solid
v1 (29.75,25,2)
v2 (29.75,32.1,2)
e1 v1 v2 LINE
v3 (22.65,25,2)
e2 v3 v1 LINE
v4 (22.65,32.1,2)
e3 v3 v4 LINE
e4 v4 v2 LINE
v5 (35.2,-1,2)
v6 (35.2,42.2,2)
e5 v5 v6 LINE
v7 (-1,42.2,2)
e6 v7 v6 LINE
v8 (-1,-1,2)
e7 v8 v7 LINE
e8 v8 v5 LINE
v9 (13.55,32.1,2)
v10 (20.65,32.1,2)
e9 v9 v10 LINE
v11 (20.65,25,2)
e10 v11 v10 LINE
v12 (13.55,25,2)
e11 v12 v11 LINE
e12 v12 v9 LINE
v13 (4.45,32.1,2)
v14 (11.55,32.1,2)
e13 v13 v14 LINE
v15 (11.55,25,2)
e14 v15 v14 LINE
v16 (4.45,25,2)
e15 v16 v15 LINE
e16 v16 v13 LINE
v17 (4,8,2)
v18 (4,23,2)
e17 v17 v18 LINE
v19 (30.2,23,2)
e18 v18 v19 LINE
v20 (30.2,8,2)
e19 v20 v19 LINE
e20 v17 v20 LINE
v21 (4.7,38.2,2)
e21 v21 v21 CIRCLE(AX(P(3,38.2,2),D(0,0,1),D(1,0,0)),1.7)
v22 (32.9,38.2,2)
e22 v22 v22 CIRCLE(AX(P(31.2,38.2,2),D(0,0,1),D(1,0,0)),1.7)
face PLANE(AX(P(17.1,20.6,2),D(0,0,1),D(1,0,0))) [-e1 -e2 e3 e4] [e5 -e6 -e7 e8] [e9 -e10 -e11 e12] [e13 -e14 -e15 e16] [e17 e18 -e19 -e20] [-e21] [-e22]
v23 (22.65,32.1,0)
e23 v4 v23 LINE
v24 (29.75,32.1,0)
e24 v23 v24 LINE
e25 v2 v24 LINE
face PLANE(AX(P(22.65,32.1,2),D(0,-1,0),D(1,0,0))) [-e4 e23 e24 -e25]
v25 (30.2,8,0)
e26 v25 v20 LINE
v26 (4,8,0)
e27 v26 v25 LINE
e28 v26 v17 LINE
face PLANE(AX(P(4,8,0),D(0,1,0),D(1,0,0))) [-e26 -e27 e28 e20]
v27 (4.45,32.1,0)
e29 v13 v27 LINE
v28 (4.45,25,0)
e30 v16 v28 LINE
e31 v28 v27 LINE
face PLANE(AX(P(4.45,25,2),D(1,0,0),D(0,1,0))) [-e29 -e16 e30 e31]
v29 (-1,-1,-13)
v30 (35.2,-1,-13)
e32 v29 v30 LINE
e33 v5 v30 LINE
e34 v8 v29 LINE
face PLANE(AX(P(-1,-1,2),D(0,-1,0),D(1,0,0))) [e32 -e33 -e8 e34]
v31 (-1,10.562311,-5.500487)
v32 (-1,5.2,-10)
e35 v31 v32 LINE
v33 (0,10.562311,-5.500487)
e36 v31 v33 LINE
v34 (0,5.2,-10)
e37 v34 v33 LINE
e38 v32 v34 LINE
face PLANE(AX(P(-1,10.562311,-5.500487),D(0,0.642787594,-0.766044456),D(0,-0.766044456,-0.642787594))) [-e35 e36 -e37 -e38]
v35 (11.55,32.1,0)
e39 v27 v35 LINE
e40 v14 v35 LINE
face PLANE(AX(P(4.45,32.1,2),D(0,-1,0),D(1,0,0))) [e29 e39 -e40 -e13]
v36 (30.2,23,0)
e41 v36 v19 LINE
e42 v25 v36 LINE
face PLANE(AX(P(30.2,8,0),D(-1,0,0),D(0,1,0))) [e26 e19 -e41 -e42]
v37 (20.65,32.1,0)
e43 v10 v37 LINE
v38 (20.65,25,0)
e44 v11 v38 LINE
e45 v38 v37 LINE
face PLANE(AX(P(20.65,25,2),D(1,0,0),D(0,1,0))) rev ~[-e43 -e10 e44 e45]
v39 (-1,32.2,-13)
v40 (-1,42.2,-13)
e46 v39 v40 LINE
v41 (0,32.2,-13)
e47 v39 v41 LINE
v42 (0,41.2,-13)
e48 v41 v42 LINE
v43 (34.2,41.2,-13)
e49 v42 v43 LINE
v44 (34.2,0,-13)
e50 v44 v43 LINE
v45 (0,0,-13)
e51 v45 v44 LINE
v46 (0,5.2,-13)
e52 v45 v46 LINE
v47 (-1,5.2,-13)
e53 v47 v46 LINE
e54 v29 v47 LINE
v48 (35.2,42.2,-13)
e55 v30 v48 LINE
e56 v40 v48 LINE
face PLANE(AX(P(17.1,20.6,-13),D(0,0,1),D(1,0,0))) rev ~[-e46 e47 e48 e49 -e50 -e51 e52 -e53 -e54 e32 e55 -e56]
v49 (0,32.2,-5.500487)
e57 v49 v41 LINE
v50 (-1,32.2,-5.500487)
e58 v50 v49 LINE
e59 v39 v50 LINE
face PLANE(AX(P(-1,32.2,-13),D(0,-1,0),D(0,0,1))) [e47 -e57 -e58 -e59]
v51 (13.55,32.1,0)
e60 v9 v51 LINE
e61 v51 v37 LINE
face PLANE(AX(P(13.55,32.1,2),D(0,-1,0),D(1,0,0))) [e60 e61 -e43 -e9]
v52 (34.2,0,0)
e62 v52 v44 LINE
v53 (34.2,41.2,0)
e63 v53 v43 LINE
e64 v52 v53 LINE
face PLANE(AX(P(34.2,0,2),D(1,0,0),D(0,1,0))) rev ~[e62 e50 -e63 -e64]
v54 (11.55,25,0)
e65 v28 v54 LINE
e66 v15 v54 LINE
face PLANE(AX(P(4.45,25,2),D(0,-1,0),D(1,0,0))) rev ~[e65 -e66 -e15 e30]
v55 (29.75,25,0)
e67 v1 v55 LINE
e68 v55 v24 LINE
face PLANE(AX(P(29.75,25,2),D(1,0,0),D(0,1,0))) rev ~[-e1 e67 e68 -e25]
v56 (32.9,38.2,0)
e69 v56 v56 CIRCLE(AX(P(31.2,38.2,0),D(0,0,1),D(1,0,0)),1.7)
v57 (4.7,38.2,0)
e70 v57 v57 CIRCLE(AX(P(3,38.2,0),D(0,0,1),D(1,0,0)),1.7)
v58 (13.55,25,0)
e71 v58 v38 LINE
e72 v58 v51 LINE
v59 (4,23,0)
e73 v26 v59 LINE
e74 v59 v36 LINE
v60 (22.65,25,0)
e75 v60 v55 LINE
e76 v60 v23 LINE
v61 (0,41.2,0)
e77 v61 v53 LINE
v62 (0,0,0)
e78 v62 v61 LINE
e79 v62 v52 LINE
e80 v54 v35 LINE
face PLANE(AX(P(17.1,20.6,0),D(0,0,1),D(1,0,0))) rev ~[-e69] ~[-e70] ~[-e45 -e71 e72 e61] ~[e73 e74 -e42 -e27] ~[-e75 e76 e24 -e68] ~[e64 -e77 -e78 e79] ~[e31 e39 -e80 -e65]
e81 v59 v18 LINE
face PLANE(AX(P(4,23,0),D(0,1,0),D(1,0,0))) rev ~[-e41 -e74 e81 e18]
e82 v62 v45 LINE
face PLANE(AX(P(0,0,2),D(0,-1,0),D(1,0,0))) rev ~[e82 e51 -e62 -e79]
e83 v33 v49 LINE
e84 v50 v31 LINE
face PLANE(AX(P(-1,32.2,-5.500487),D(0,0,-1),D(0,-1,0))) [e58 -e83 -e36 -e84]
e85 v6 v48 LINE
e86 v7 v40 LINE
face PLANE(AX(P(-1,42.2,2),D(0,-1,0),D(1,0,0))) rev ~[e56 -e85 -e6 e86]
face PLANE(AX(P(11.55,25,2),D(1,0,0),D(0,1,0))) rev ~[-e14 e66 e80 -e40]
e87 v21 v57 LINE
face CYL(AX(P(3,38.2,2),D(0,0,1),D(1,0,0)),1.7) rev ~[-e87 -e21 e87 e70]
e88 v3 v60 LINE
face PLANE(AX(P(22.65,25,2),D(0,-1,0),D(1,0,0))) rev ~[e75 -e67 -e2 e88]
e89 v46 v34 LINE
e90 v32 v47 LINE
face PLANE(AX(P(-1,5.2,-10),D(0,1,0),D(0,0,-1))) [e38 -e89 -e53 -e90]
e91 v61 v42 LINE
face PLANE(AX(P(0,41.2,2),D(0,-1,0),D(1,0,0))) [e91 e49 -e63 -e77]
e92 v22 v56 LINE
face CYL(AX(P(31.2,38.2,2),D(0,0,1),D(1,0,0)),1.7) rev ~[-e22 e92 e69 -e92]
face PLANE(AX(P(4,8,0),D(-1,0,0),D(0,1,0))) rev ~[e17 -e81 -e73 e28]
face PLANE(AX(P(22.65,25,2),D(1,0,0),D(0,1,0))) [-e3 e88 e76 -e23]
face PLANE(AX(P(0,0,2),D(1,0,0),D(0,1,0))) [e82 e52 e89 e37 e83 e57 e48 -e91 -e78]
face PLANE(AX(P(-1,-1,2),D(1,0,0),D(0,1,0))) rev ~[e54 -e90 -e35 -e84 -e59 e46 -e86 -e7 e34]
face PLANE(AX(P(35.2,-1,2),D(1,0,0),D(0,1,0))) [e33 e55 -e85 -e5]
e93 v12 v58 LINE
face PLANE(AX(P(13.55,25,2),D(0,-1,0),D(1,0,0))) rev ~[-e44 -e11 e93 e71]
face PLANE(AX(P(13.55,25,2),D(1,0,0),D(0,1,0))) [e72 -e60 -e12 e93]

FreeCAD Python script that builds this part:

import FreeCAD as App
import Part
import Sketcher
from FreeCAD import Vector
Q = App.Units.Quantity


def add_polygon(sketch, points):
    """Adds a closed chain of lines whose ends are joined by coincident constraints."""
    first, n = sketch.GeometryCount, len(points)
    for a, b in zip(points, points[1:] + points[:1]):
        sketch.addGeometry(Part.LineSegment(App.Vector(*a, 0), App.Vector(*b, 0)), False)
    for i in range(n):
        sketch.addConstraint(Sketcher.Constraint("Coincident", first + i, 2, first + (i + 1) % n, 1))

doc = App.newDocument("Part")
params = doc.addObject("Spreadsheet::Sheet", "Params")
for row, (alias, value) in enumerate([
    ("sketch1_height", "15 mm"),
    ("sketch1_width", "34.2 mm"),
    ("sketch1_width2", "26.2 mm"),
    ("sketch1_height2", "41.2 mm"),
    ("pad1_length", "2 mm"),
    ("sketch2_diameter", "3.4 mm"),
    ("pocket1_length", "5 mm"),
    ("sketch3_width", "7.1 mm"),
    ("pocket2_length", "5 mm"),
    ("sketch4_width", "36.2 mm"),
    ("sketch4_width2", "34.2 mm"),
    ("sketch4_height", "43.2 mm"),
    ("sketch4_height2", "41.2 mm"),
    ("pad2_length", "15 mm"),
    ("sketch5_width", "27 mm"),
    ("sketch5_height", "3 mm"),
    ("sketch5_length", "7 mm"),
    ("pocket3_length", "5 mm"),
], start=1):
    params.set(f"A{row}", alias)
    params.set(f"B{row}", "=" + value)
    params.setAlias(f"B{row}", alias)

body = doc.addObject("PartDesign::Body", "Body")

# Sketch on XY plane
sketch1 = body.newObject("Sketcher::SketchObject", "Sketch")
sketch1.AttachmentSupport = (doc.getObject("XY_Plane"), [""])
sketch1.MapMode = "FlatFace"
add_polygon(sketch1, [(0, 41), (0, 0), (34, 0), (34, 41)])  # lines 0-3
add_polygon(sketch1, [(30, 8), (4, 8), (4, 23), (30, 23)])  # lines 4-7
sketch1.addConstraint([
    Sketcher.Constraint("Vertical", 0),
    Sketcher.Constraint("Horizontal", 1),
    Sketcher.Constraint("Vertical", 2),
    Sketcher.Constraint("Horizontal", 3),
    Sketcher.Constraint("Horizontal", 4),
    Sketcher.Constraint("Vertical", 5),
    Sketcher.Constraint("Horizontal", 6),
    Sketcher.Constraint("Vertical", 7),
    Sketcher.Constraint("Coincident", 0, 2, -1, 1),
    Sketcher.Constraint("DistanceY", 5, 1, 5, 2, Q("15 mm")),
    Sketcher.Constraint("DistanceX", 1, 1, 1, 2, Q("34.2 mm")),
    Sketcher.Constraint("DistanceX", 4, 2, 4, 1, Q("26.2 mm")),
    Sketcher.Constraint("DistanceY", 0, 2, 0, 1, Q("41.2 mm")),
    Sketcher.Constraint("DistanceX", -1, 1, 4, 2, Q("4 mm")),
    Sketcher.Constraint("DistanceY", -1, 1, 4, 2, Q("8 mm")),
])
sketch1.setExpression("Constraints[17]", "Params.sketch1_height")
sketch1.setExpression("Constraints[18]", "Params.sketch1_width")
sketch1.setExpression("Constraints[19]", "Params.sketch1_width2")
sketch1.setExpression("Constraints[20]", "Params.sketch1_height2")
pad1 = body.newObject("PartDesign::Pad", "Pad")
pad1.Profile = sketch1
pad1.setExpression("Length", "Params.pad1_length")

# Sketch on XY plane
sketch2 = body.newObject("Sketcher::SketchObject", "Sketch001")
sketch2.AttachmentSupport = (doc.getObject("XY_Plane"), [""])
sketch2.MapMode = "FlatFace"
sketch2.AttachmentOffset = App.Placement(Vector(0, 0, 2), App.Rotation())
sketch2.addGeometry([
    Part.Circle(Vector(3, 38.2, 0), Vector(0, 0, 1), 1.7),
    Part.Circle(Vector(31.2, 38.2, 0), Vector(0, 0, 1), 1.7),
], False)
sketch2.addConstraint([
    Sketcher.Constraint("Equal", 0, 1),
    Sketcher.Constraint("Horizontal", 0, 3, 1, 3),
    Sketcher.Constraint("Diameter", 0, Q("3.4 mm")),
    Sketcher.Constraint("DistanceX", -1, 1, 0, 3, Q("3 mm")),
    Sketcher.Constraint("DistanceY", -1, 1, 0, 3, Q("38.2 mm")),
    Sketcher.Constraint("DistanceX", -1, 1, 1, 3, Q("31.2 mm")),
])
sketch2.setExpression("Constraints[2]", "Params.sketch2_diameter")
pocket1 = body.newObject("PartDesign::Pocket", "Pocket")
pocket1.Profile = sketch2
pocket1.setExpression("Length", "Params.pocket1_length")

# Sketch on XY plane
sketch3 = body.newObject("Sketcher::SketchObject", "Sketch002")
sketch3.AttachmentSupport = (doc.getObject("XY_Plane"), [""])
sketch3.MapMode = "FlatFace"
sketch3.AttachmentOffset = App.Placement(Vector(0, 0, 2), App.Rotation())
add_polygon(sketch3, [(4, 32), (4, 25), (12, 25), (12, 32)])  # lines 0-3
add_polygon(sketch3, [(14, 32), (14, 25), (21, 25), (21, 32)])  # lines 4-7
add_polygon(sketch3, [(23, 32), (23, 25), (30, 25), (30, 32)])  # lines 8-11
sketch3.addConstraint([
    Sketcher.Constraint("Vertical", 0),
    Sketcher.Constraint("Horizontal", 1),
    Sketcher.Constraint("Vertical", 2),
    Sketcher.Constraint("Horizontal", 3),
    Sketcher.Constraint("Vertical", 4),
    Sketcher.Constraint("Horizontal", 5),
    Sketcher.Constraint("Vertical", 6),
    Sketcher.Constraint("Horizontal", 7),
    Sketcher.Constraint("Vertical", 8),
    Sketcher.Constraint("Horizontal", 9),
    Sketcher.Constraint("Vertical", 10),
    Sketcher.Constraint("Horizontal", 11),
    Sketcher.Constraint("Horizontal", 1, 2, 4, 2),
    Sketcher.Constraint("Horizontal", 3, 2, 6, 2),
    Sketcher.Constraint("Horizontal", 5, 2, 8, 2),
    Sketcher.Constraint("Horizontal", 7, 2, 10, 2),
    Sketcher.Constraint("Equal", 3, 5),
    Sketcher.Constraint("Equal", 7, 9),
    Sketcher.Constraint("Equal", 11, 0),
    Sketcher.Constraint("DistanceX", 1, 1, 1, 2, Q("7.1 mm")),
    Sketcher.Constraint("DistanceY", -1, 1, 0, 2, Q("25 mm")),
    Sketcher.Constraint("DistanceX", 1, 2, 4, 2, Q("2 mm")),
    Sketcher.Constraint("DistanceX", 5, 2, 8, 2, Q("2 mm")),
    Sketcher.Constraint("DistanceX", -1, 1, 0, 2, Q("4.45 mm")),
])
sketch3.setExpression("Constraints[31]", "Params.sketch3_width")
pocket2 = body.newObject("PartDesign::Pocket", "Pocket001")
pocket2.Profile = sketch3
pocket2.setExpression("Length", "Params.pocket2_length")

# Sketch on XY plane
sketch4 = body.newObject("Sketcher::SketchObject", "Sketch003")
sketch4.AttachmentSupport = (doc.getObject("XY_Plane"), [""])
sketch4.MapMode = "FlatFace"
sketch4.AttachmentOffset = App.Placement(Vector(0, 0, 2), App.Rotation())
add_polygon(sketch4, [(-1, 42), (-1, -1), (35, -1), (35, 42)])  # lines 0-3
add_polygon(sketch4, [(34, 0), (0, 0), (0, 41), (34, 41)])  # lines 4-7
sketch4.addConstraint([
    Sketcher.Constraint("Vertical", 0),
    Sketcher.Constraint("Horizontal", 1),
    Sketcher.Constraint("Vertical", 2),
    Sketcher.Constraint("Horizontal", 3),
    Sketcher.Constraint("Horizontal", 4),
    Sketcher.Constraint("Vertical", 5),
    Sketcher.Constraint("Horizontal", 6),
    Sketcher.Constraint("Vertical", 7),
    Sketcher.Constraint("Coincident", 4, 2, -1, 1),
    Sketcher.Constraint("DistanceX", 1, 1, 1, 2, Q("36.2 mm")),
    Sketcher.Constraint("DistanceX", 4, 2, 4, 1, Q("34.2 mm")),
    Sketcher.Constraint("DistanceY", 0, 2, 0, 1, Q("43.2 mm")),
    Sketcher.Constraint("DistanceY", 5, 1, 5, 2, Q("41.2 mm")),
    Sketcher.Constraint("DistanceX", 0, 2, -1, 1, Q("1 mm")),
    Sketcher.Constraint("DistanceY", 0, 2, -1, 1, Q("1 mm")),
])
sketch4.setExpression("Constraints[17]", "Params.sketch4_width")
sketch4.setExpression("Constraints[18]", "Params.sketch4_width2")
sketch4.setExpression("Constraints[19]", "Params.sketch4_height")
sketch4.setExpression("Constraints[20]", "Params.sketch4_height2")
pad2 = body.newObject("PartDesign::Pad", "Pad001")
pad2.Profile = sketch4
pad2.setExpression("Length", "Params.pad2_length")
pad2.Reversed = True

# Sketch on YZ plane
sketch5 = body.newObject("Sketcher::SketchObject", "Sketch004")
sketch5.AttachmentSupport = (doc.getObject("YZ_Plane"), [""])
sketch5.MapMode = "FlatFace"
sketch5.AttachmentOffset = App.Placement(Vector(0, 0, -1), App.Rotation())
add_polygon(sketch5, [(32.2, -13), (5.2, -13), (5.2, -10), (10.6, -5.5), (32.2, -5.5)])  # lines 0-4
sketch5.addConstraint([
    Sketcher.Constraint("Horizontal", 0),
    Sketcher.Constraint("Vertical", 1),
    Sketcher.Constraint("Horizontal", 3),
    Sketcher.Constraint("Vertical", 4),
    Sketcher.Constraint("DistanceX", 0, 2, 0, 1, Q("27 mm")),
    Sketcher.Constraint("DistanceY", 1, 1, 1, 2, Q("3 mm")),
    Sketcher.Constraint("Angle", 2, Q("39.999999 deg")),
    Sketcher.Constraint("Distance", 2, Q("7 mm")),
    Sketcher.Constraint("DistanceY", 0, 2, -1, 1, Q("13 mm")),
    Sketcher.Constraint("DistanceX", -1, 1, 0, 2, Q("5.2 mm")),
])
sketch5.setExpression("Constraints[9]", "Params.sketch5_width")
sketch5.setExpression("Constraints[10]", "Params.sketch5_height")
sketch5.setExpression("Constraints[12]", "Params.sketch5_length")
pocket3 = body.newObject("PartDesign::Pocket", "Pocket002")
pocket3.Profile = sketch5
pocket3.setExpression("Length", "Params.pocket3_length")
pocket3.Reversed = True

doc.recompute()
